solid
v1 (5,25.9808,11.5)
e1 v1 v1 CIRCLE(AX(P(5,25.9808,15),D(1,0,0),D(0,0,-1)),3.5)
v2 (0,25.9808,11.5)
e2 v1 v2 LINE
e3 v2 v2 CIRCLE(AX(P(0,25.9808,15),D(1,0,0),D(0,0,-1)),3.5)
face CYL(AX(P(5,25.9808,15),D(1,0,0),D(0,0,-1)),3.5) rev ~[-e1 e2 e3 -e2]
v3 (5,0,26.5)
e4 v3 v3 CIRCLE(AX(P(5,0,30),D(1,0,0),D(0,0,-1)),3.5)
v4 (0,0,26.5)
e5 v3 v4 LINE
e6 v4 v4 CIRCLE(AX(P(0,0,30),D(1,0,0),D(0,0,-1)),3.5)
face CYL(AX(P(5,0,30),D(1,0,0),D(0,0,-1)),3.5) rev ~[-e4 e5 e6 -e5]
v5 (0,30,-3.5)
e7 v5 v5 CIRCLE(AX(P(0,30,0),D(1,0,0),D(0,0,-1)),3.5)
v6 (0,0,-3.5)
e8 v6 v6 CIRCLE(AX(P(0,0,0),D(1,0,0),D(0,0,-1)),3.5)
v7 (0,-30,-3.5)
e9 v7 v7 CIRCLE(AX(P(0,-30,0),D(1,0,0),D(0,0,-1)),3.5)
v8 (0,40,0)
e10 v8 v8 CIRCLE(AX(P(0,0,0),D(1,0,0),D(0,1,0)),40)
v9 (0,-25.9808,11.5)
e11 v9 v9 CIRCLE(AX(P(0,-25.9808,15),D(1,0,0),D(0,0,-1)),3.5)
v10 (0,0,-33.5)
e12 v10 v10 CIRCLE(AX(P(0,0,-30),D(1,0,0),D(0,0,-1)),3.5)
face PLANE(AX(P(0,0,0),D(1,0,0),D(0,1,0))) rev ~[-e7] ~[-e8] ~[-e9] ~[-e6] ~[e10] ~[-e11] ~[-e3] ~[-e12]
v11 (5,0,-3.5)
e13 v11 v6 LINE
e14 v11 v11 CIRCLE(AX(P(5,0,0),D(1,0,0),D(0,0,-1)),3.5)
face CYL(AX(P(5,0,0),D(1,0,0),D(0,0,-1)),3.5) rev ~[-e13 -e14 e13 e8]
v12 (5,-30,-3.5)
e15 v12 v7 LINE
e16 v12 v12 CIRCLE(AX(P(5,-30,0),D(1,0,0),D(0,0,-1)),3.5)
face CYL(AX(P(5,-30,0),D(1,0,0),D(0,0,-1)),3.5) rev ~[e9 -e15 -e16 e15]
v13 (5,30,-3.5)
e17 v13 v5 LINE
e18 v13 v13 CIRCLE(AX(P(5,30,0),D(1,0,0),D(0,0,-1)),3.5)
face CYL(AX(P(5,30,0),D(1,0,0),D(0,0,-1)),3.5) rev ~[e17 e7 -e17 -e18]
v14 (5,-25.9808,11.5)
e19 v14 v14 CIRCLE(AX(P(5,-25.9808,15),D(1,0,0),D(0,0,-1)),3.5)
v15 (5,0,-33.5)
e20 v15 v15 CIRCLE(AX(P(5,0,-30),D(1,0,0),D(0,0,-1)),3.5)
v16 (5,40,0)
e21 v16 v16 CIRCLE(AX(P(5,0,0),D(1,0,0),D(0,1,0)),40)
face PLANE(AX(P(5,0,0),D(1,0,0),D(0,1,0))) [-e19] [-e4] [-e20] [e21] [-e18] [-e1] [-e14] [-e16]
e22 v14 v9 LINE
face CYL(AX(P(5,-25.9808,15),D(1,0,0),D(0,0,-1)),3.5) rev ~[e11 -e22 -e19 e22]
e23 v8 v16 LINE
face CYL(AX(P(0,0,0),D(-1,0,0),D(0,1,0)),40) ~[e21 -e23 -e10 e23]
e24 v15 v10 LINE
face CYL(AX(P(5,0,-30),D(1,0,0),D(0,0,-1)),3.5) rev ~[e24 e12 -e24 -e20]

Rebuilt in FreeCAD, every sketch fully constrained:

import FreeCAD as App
import Part
import Sketcher
from FreeCAD import Vector

doc = App.newDocument("Part")
params = doc.addObject("Spreadsheet::Sheet", "Params")
for row, (alias, value) in enumerate([
    ("sketch1_diameter", "80 mm"),
    ("pad1_length", "5 mm"),
    ("sketch2_diameter", "7 mm"),
], start=1):
    params.set(f"A{row}", alias)
    params.set(f"B{row}", "=" + value)
    params.setAlias(f"B{row}", alias)

body = doc.addObject("PartDesign::Body", "Body")

# Sketch on YZ plane
sketch1 = body.newObject("Sketcher::SketchObject", "Sketch")
sketch1.AttachmentSupport = (doc.getObject("YZ_Plane"), [""])
sketch1.MapMode = "FlatFace"
sketch1.addGeometry(Part.Circle(Vector(0, 0, 0), Vector(0, 0, 1), 40), False)
sketch1.addConstraint([
    Sketcher.Constraint("Coincident", 0, 3, -1, 1),
    Sketcher.Constraint("Diameter", 0, 80.0),
])
sketch1.setExpression("Constraints[1]", "Params.sketch1_diameter")
pad1 = body.newObject("PartDesign::Pad", "Pad")
pad1.Profile = sketch1
pad1.setExpression("Length", "Params.pad1_length")

# Sketch on YZ plane
sketch2 = body.newObject("Sketcher::SketchObject", "Sketch001")
sketch2.AttachmentSupport = (doc.getObject("YZ_Plane"), [""])
sketch2.MapMode = "FlatFace"
sketch2.AttachmentOffset = App.Placement(Vector(0, 0, 5), App.Rotation())
sketch2.addGeometry([
    Part.Circle(Vector(0, -30, 0), Vector(0, 0, 1), 3.5),  # 0
    Part.Circle(Vector(0, 0, 0), Vector(0, 0, 1), 3.5),  # 1
    Part.Circle(Vector(30, 0, 0), Vector(0, 0, 1), 3.5),  # 2
    Part.Circle(Vector(0, 30, 0), Vector(0, 0, 1), 3.5),  # 3
    Part.Circle(Vector(-30, 0, 0), Vector(0, 0, 1), 3.5),  # 4
    Part.Circle(Vector(25.9808, 15, 0), Vector(0, 0, 1), 3.5),  # 5
    Part.Circle(Vector(-25.9808, 15, 0), Vector(0, 0, 1), 3.5),  # 6
], False)
sketch2.addConstraint([
    Sketcher.Constraint("Coincident", 1, 3, -1, 1),
    Sketcher.Constraint("Equal", 0, 1),
    Sketcher.Constraint("Equal", 1, 2),
    Sketcher.Constraint("Equal", 2, 3),
    Sketcher.Constraint("Equal", 3, 4),
    Sketcher.Constraint("Equal", 4, 5),
    Sketcher.Constraint("Equal", 5, 6),
    Sketcher.Constraint("Symmetric", 0, 3, 3, 3, -1, 1),
    Sketcher.Constraint("Symmetric", 2, 3, 4, 3, -1, 1),
    Sketcher.Constraint("Symmetric", 5, 3, 6, 3, -2),
    Sketcher.Constraint("PointOnObject", 0, 3, -2),
    Sketcher.Constraint("PointOnObject", 2, 3, -1),
    Sketcher.Constraint("Diameter", 0, 7.0),
    Sketcher.Constraint("DistanceY", 0, 3, -1, 1, 30.0),
    Sketcher.Constraint("DistanceX", -1, 1, 2, 3, 30.0),
    Sketcher.Constraint("DistanceY", -1, 1, 5, 3, 15.0),
    Sketcher.Constraint("DistanceX", -1, 1, 5, 3, 25.9808),
])
sketch2.setExpression("Constraints[12]", "Params.sketch2_diameter")
pocket1 = body.newObject("PartDesign::Pocket", "Pocket")
pocket1.Profile = sketch2
pocket1.Type = "ThroughAll"

doc.recompute()
